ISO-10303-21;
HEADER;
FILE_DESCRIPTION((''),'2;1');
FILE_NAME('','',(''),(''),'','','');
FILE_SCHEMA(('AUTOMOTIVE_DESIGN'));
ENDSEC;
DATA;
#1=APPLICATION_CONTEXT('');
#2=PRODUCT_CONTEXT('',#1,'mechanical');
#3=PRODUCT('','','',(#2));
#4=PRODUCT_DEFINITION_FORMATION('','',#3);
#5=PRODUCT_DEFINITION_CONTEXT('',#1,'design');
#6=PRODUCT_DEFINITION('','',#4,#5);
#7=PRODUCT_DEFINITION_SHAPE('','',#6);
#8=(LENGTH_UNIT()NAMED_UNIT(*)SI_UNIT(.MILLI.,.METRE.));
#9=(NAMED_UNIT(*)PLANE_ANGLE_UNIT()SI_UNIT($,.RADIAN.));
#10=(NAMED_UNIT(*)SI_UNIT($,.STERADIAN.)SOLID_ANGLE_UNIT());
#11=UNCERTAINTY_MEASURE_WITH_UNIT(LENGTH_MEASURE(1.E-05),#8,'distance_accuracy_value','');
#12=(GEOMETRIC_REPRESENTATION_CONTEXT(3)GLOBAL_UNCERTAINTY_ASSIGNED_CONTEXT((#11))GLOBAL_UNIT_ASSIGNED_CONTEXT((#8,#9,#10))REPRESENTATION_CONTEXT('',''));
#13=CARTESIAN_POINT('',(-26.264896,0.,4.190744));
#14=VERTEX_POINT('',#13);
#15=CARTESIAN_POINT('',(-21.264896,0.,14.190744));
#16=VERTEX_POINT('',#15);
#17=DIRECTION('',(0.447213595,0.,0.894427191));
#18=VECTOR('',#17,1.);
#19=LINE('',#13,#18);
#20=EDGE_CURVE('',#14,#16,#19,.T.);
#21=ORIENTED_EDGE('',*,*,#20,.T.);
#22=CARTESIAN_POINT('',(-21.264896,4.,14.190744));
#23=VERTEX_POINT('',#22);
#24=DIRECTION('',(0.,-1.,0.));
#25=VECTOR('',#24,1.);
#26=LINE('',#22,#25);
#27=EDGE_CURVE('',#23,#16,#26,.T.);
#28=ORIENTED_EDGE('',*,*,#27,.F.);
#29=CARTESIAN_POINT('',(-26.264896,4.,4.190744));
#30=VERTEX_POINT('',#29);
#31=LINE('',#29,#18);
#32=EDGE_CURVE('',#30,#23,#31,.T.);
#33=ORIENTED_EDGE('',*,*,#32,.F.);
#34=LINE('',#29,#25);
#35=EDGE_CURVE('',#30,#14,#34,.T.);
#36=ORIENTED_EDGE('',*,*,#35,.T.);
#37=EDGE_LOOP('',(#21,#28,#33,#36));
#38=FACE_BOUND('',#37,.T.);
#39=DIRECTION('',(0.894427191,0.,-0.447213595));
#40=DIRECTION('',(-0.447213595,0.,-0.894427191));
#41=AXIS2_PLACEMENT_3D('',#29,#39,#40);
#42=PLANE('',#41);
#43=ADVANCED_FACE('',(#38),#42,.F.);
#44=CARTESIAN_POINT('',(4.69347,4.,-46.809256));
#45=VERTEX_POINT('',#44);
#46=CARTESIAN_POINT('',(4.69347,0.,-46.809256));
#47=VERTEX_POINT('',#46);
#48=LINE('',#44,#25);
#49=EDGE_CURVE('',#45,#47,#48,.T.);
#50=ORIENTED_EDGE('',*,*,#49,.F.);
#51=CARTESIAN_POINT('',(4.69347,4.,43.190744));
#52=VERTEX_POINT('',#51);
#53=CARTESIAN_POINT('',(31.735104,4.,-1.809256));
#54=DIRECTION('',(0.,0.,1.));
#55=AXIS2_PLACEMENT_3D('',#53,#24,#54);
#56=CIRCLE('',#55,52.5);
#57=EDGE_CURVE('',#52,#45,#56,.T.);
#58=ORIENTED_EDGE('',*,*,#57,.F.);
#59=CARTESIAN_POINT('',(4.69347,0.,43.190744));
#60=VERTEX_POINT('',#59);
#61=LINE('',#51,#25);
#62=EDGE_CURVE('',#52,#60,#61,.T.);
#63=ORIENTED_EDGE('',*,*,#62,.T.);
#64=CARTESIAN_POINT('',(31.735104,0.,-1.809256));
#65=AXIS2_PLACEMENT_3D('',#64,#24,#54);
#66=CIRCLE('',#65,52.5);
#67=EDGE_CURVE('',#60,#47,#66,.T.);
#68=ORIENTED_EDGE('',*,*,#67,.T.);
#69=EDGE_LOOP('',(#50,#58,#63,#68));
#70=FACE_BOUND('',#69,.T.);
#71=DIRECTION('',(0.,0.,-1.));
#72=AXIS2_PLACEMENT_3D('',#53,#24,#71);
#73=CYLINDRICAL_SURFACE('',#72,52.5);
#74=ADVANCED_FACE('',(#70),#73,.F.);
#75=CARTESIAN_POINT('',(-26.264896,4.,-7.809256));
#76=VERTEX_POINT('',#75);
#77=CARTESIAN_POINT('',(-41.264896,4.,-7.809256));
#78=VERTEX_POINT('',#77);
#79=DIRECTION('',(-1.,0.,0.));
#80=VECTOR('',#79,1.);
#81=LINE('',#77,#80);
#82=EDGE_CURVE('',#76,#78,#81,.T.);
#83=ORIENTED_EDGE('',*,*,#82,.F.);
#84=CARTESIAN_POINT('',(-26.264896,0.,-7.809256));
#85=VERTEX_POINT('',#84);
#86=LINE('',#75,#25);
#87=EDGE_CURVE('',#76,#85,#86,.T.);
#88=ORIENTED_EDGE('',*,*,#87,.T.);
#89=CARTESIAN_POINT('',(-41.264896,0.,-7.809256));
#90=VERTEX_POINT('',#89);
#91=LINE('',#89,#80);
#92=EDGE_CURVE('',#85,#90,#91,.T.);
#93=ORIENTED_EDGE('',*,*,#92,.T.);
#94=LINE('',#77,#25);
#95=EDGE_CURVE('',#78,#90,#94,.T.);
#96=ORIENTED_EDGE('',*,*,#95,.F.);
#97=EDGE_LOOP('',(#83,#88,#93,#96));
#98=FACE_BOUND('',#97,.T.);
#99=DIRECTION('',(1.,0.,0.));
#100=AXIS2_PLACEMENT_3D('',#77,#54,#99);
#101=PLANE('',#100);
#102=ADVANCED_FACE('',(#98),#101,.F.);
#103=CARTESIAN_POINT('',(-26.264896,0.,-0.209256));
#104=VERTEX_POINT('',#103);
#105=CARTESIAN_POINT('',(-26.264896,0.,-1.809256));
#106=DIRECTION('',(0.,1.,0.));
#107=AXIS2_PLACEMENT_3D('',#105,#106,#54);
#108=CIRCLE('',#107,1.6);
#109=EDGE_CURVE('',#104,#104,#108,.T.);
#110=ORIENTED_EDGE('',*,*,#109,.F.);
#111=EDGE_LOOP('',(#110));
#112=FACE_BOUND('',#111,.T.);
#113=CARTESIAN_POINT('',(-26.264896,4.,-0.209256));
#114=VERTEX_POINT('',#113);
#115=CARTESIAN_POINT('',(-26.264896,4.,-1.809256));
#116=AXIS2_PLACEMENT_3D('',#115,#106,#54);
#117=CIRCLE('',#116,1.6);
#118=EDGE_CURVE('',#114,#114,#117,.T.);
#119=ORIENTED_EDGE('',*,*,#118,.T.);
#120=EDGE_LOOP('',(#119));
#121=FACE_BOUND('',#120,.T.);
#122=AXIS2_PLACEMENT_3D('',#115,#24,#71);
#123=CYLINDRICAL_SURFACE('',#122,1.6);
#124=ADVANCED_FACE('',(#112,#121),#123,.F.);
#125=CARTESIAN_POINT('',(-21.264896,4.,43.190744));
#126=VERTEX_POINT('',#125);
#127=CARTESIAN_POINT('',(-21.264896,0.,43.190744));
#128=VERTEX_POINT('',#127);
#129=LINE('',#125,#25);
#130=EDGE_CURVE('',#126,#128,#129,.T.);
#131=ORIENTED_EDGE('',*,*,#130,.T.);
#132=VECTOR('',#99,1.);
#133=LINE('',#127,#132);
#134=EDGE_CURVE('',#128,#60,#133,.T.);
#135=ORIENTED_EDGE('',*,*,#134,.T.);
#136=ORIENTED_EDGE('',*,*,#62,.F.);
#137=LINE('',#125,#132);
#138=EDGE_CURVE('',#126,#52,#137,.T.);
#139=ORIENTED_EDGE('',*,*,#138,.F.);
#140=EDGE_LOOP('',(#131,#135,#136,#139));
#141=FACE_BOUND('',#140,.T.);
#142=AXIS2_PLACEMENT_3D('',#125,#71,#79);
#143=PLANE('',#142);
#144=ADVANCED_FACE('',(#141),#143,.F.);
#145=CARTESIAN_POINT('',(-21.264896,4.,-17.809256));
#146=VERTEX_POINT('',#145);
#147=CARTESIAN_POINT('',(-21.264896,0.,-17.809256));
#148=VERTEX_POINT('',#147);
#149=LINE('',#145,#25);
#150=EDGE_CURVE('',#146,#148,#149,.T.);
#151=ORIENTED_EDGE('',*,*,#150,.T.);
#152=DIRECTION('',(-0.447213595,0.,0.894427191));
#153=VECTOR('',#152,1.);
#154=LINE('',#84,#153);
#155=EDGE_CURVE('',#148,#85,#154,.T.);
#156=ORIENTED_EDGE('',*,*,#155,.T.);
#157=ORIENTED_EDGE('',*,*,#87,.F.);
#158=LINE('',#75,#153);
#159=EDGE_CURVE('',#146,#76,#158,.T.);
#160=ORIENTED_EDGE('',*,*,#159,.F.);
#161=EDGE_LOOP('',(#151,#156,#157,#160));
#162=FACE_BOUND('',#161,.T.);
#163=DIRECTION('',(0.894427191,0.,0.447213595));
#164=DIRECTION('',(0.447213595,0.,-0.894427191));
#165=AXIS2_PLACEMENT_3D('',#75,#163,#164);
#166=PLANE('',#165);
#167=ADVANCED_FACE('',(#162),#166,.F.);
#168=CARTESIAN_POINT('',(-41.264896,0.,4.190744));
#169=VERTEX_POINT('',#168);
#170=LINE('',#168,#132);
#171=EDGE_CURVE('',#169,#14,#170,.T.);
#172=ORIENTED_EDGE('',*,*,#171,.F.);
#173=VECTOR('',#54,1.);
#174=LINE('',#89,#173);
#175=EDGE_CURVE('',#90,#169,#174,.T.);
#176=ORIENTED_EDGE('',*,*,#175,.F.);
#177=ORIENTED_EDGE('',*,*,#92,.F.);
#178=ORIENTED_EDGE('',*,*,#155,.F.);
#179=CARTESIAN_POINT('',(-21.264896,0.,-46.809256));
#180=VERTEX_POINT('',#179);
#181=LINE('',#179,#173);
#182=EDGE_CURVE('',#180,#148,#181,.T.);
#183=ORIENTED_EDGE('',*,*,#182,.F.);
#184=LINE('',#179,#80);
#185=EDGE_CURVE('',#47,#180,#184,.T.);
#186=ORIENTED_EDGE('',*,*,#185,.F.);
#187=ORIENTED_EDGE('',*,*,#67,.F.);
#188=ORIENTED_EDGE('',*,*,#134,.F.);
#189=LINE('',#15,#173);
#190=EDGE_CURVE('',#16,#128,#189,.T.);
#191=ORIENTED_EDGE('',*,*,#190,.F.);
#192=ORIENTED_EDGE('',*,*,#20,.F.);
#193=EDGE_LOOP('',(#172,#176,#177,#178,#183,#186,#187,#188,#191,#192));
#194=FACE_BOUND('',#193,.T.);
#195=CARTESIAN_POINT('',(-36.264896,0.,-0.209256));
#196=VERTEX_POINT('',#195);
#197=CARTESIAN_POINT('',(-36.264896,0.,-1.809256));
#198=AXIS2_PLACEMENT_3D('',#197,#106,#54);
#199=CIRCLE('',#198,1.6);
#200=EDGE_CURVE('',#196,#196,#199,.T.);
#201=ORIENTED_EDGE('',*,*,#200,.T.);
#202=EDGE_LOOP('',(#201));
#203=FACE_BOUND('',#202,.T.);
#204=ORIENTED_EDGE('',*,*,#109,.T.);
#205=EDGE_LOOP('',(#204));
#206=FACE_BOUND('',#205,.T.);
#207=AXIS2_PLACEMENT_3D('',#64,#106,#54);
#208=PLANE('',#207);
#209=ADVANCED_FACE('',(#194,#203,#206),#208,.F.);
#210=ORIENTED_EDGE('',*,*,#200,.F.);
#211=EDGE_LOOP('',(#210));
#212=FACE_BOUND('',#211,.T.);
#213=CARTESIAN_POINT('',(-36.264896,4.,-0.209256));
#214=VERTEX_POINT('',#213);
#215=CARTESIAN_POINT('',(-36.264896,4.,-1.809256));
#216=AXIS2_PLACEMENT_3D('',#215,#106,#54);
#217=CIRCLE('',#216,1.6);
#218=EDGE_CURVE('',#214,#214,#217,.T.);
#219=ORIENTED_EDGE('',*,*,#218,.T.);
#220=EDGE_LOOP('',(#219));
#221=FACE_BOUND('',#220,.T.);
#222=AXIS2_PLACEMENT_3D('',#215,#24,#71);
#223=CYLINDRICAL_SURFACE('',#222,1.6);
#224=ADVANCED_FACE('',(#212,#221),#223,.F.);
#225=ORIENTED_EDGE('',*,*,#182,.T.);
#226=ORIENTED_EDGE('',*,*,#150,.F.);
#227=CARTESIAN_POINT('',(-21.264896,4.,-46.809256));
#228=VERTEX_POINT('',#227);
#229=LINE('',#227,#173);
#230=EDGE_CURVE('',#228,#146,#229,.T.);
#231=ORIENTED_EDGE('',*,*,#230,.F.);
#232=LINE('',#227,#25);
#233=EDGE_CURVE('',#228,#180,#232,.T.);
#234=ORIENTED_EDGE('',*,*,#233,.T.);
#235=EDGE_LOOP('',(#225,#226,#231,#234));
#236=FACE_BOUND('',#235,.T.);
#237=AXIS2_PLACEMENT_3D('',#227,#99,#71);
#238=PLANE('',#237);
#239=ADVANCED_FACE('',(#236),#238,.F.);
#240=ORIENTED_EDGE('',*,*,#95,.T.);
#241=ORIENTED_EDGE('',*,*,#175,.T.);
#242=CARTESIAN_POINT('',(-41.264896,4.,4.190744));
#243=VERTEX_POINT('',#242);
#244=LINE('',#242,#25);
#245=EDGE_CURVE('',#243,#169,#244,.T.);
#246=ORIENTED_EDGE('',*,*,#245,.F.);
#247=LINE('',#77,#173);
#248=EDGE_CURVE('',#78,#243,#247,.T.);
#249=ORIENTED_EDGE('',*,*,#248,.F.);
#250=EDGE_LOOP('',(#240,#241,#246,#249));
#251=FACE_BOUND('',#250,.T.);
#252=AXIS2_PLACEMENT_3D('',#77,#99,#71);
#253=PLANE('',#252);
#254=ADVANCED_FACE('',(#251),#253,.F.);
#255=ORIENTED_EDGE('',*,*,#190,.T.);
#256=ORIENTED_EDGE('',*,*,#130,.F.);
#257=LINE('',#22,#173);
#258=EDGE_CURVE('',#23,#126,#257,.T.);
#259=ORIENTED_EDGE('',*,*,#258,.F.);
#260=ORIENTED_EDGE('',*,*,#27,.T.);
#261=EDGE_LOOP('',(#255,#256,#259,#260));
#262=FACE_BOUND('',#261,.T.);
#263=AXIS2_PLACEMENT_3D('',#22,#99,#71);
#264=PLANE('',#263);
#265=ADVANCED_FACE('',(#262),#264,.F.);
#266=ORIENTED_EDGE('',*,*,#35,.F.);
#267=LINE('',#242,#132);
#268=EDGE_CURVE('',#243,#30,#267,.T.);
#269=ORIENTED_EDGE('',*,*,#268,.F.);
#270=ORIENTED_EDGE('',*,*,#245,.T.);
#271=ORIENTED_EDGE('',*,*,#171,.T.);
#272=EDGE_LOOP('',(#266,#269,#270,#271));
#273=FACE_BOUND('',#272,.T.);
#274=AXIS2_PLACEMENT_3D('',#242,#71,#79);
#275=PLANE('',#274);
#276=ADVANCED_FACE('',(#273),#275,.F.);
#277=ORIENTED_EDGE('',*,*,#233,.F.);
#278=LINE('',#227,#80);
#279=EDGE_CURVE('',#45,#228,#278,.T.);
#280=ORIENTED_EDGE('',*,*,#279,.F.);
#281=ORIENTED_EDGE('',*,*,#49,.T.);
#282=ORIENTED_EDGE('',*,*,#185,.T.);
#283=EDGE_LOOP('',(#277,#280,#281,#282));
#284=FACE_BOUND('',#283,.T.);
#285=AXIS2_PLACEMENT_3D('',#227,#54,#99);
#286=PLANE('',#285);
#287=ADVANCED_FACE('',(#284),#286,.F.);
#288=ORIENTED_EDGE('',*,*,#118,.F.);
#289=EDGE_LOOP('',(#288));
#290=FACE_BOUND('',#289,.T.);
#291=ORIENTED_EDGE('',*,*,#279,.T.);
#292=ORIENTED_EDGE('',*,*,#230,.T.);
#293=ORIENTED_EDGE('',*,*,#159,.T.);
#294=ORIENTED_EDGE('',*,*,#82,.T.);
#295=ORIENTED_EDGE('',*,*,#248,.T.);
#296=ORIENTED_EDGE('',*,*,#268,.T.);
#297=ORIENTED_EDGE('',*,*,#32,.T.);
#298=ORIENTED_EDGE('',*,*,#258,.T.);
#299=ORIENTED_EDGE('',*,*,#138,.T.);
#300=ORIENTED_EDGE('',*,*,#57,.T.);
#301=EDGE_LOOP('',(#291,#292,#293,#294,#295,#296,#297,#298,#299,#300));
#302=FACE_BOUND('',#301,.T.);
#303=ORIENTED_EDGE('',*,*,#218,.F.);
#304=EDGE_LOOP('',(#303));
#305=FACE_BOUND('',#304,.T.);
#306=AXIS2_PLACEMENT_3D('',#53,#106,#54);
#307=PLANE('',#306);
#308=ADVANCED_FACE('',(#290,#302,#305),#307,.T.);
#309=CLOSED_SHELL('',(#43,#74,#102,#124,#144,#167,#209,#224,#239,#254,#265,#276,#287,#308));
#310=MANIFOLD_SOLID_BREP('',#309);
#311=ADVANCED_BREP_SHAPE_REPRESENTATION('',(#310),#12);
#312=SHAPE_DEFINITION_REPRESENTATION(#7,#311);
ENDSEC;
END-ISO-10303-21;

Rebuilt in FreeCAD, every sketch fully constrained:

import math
import FreeCAD as App
import Part
import Sketcher
from FreeCAD import Vector

doc = App.newDocument("Part")
body = doc.addObject("PartDesign::Body", "Body")

sketch1 = body.newObject("Sketcher::SketchObject", "Sketch")
sketch1.AttachmentSupport = (doc.getObject("XZ_Plane"), [""])
sketch1.MapMode = "FlatFace"
sketch1.addGeometry([
    Part.LineSegment(Vector(4.7, -46.8, 0), Vector(-21.3, -46.8, 0)),
    Part.LineSegment(Vector(-21.3, -46.8, 0), Vector(-21.3, -17.8, 0)),
    Part.LineSegment(Vector(-21.3, -17.8, 0), Vector(-26.3, -7.8, 0)),
    Part.LineSegment(Vector(-26.3, -7.8, 0), Vector(-41.3, -7.8, 0)),
    Part.LineSegment(Vector(-41.3, -7.8, 0), Vector(-41.3, 4.2, 0)),
    Part.LineSegment(Vector(-41.3, 4.2, 0), Vector(-26.3, 4.2, 0)),
    Part.LineSegment(Vector(-26.3, 4.2, 0), Vector(-21.3, 14.2, 0)),
    Part.LineSegment(Vector(-21.3, 14.2, 0), Vector(-21.3, 43.2, 0)),
    Part.LineSegment(Vector(-21.3, 43.2, 0), Vector(4.7, 43.2, 0)),
    Part.ArcOfCircle(Part.Circle(Vector(31.7, -1.8, 0), Vector(0, 0, 1), 52.5), math.radians(121), math.radians(239)),
    Part.Circle(Vector(-26.3, -1.8, 0), Vector(0, 0, 1), 1.6),
    Part.Circle(Vector(-36.3, -1.8, 0), Vector(0, 0, 1), 1.6),
], False)
sketch1.addConstraint([
    Sketcher.Constraint("Coincident", 0, 2, 1, 1),
    Sketcher.Constraint("Coincident", 1, 2, 2, 1),
    Sketcher.Constraint("Coincident", 2, 2, 3, 1),
    Sketcher.Constraint("Coincident", 3, 2, 4, 1),
    Sketcher.Constraint("Coincident", 4, 2, 5, 1),
    Sketcher.Constraint("Coincident", 5, 2, 6, 1),
    Sketcher.Constraint("Coincident", 6, 2, 7, 1),
    Sketcher.Constraint("Coincident", 7, 2, 8, 1),
    Sketcher.Constraint("Coincident", 8, 2, 9, 1),
    Sketcher.Constraint("Coincident", 9, 2, 0, 1),
    Sketcher.Constraint("Horizontal", 0),
    Sketcher.Constraint("Vertical", 1),
    Sketcher.Constraint("Horizontal", 3),
    Sketcher.Constraint("Vertical", 4),
    Sketcher.Constraint("Horizontal", 5),
    Sketcher.Constraint("Vertical", 7),
    Sketcher.Constraint("Horizontal", 8),
    Sketcher.Constraint("Equal", 10, 11),
    Sketcher.Constraint("Horizontal", 9, 3, 10, 3),
    Sketcher.Constraint("Horizontal", 10, 3, 11, 3),
    Sketcher.Constraint("Vertical", 10, 3, 2, 2),
    Sketcher.Constraint("Vertical", 2, 2, 5, 2),
    Sketcher.Constraint("Vertical", 1, 2, 6, 2),
    Sketcher.Constraint("Vertical", 8, 2, 9, 2),
    Sketcher.Constraint("Equal", 1, 7),
    Sketcher.Constraint("Equal", 2, 6),
    Sketcher.Constraint("Diameter", 10, 3.2),
    Sketcher.Constraint("Radius", 9, 52.5),
    Sketcher.Constraint("DistanceX", 3, 2, 3, 1, 15.0),
    Sketcher.Constraint("DistanceY", 1, 1, 1, 2, 29.0),
    Sketcher.Constraint("DistanceY", 4, 1, 4, 2, 12.0),
    Sketcher.Constraint("DistanceX", 10, 3, 9, 3, 58.0),
    Sketcher.Constraint("DistanceX", 11, 3, 10, 3, 10.0),
    Sketcher.Constraint("DistanceX", 10, 3, 0, 2, 5.0),
    Sketcher.Constraint("DistanceY", 0, 2, 10, 3, 45.0),
    Sketcher.Constraint("DistanceX", -1, 1, 8, 2, 4.69347),
    Sketcher.Constraint("DistanceY", 9, 3, -1, 1, 1.809256),
])
pad1 = body.newObject("PartDesign::Pad", "Pad")
pad1.Profile = sketch1
pad1.Length = 4
pad1.Reversed = True

doc.recompute()
